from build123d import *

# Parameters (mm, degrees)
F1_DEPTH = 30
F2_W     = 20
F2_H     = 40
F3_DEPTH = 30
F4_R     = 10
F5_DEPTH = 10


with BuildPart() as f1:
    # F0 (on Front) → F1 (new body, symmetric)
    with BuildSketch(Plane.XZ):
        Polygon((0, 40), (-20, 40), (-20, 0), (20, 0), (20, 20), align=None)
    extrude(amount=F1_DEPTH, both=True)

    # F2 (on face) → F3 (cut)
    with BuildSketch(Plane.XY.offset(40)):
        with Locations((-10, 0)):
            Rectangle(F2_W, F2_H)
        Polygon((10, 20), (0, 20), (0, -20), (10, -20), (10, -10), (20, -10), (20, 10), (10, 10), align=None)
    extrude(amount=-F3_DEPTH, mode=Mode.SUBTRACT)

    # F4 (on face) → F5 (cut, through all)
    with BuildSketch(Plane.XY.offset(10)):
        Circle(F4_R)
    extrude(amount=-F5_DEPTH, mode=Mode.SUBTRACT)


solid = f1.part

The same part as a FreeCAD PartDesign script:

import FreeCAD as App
import Part
import Sketcher

doc = App.newDocument("Part")
params = doc.addObject("Spreadsheet::Sheet", "Params")
for row, (alias, value) in enumerate([
    ("sketch1_width", "20 mm"),
    ("pad1_length", "60 mm"),
    ("sketch2_width", "30 mm"),
    ("sketch2_width2", "10 mm"),
    ("sketch2_height", "40 mm"),
    ("pocket1_length", "30 mm"),
    ("sketch3_diameter", "20 mm"),
], start=1):
    params.set(f"A{row}", alias)
    params.set(f"B{row}", "=" + value)
    params.setAlias(f"B{row}", alias)

body = doc.addObject("PartDesign::Body", "Body")

# Sketch on XZ plane
sketch1 = doc.addObject("Sketcher::SketchObject", "Sketch")
body.addObject(sketch1)
sketch1.AttachmentSupport = (doc.XZ_Plane, [""])
sketch1.MapMode = "FlatFace"
sketch1.addGeometry(Part.LineSegment(App.Vector(0, 40, 0), App.Vector(-20, 40, 0)), False)
sketch1.addGeometry(Part.LineSegment(App.Vector(-20, 40, 0), App.Vector(-20, 0, 0)), False)
sketch1.addGeometry(Part.LineSegment(App.Vector(-20, 0, 0), App.Vector(20, 0, 0)), False)
sketch1.addGeometry(Part.LineSegment(App.Vector(20, 0, 0), App.Vector(20, 20, 0)), False)
sketch1.addGeometry(Part.LineSegment(App.Vector(20, 20, 0), App.Vector(0, 40, 0)), False)
sketch1.addConstraint(Sketcher.Constraint("Coincident", 0, 2, 1, 1))
sketch1.addConstraint(Sketcher.Constraint("Coincident", 1, 2, 2, 1))
sketch1.addConstraint(Sketcher.Constraint("Coincident", 2, 2, 3, 1))
sketch1.addConstraint(Sketcher.Constraint("Coincident", 3, 2, 4, 1))
sketch1.addConstraint(Sketcher.Constraint("Coincident", 4, 2, 0, 1))
sketch1.addConstraint(Sketcher.Constraint("Horizontal", 0))
sketch1.addConstraint(Sketcher.Constraint("Vertical", 1))
sketch1.addConstraint(Sketcher.Constraint("Horizontal", 2))
sketch1.addConstraint(Sketcher.Constraint("Vertical", 3))
sketch1.addConstraint(Sketcher.Constraint("Symmetric", 1, 2, 2, 2, -1, 1))
sketch1.addConstraint(Sketcher.Constraint("PointOnObject", 4, 2, -2))
sketch1.addConstraint(Sketcher.Constraint("Equal", 2, 1))
sketch1.addConstraint(Sketcher.Constraint("Equal", 0, 3))
sketch1.addConstraint(Sketcher.Constraint("DistanceX", 0, 2, 0, 1, 20.0))
sketch1.setExpression("Constraints[13]", "Params.sketch1_width")
pad1 = doc.addObject("PartDesign::Pad", "Pad")
body.addObject(pad1)
pad1.Profile = sketch1
pad1.setExpression("Length", "Params.pad1_length")
pad1.Midplane = True

# Sketch on XY plane
sketch2 = doc.addObject("Sketcher::SketchObject", "Sketch001")
body.addObject(sketch2)
sketch2.AttachmentSupport = (doc.XY_Plane, [""])
sketch2.MapMode = "FlatFace"
sketch2.AttachmentOffset = App.Placement(App.Vector(0, 0, 40), App.Rotation())
sketch2.addGeometry(Part.LineSegment(App.Vector(-20, 20, 0), App.Vector(-20, -20, 0)), False)
sketch2.addGeometry(Part.LineSegment(App.Vector(-20, -20, 0), App.Vector(10, -20, 0)), False)
sketch2.addGeometry(Part.LineSegment(App.Vector(10, -20, 0), App.Vector(10, -10, 0)), False)
sketch2.addGeometry(Part.LineSegment(App.Vector(10, -10, 0), App.Vector(20, -10, 0)), False)
sketch2.addGeometry(Part.LineSegment(App.Vector(20, -10, 0), App.Vector(20, 10, 0)), False)
sketch2.addGeometry(Part.LineSegment(App.Vector(20, 10, 0), App.Vector(10, 10, 0)), False)
sketch2.addGeometry(Part.LineSegment(App.Vector(10, 10, 0), App.Vector(10, 20, 0)), False)
sketch2.addGeometry(Part.LineSegment(App.Vector(10, 20, 0), App.Vector(-20, 20, 0)), False)
sketch2.addConstraint(Sketcher.Constraint("Coincident", 0, 2, 1, 1))
sketch2.addConstraint(Sketcher.Constraint("Coincident", 1, 2, 2, 1))
sketch2.addConstraint(Sketcher.Constraint("Coincident", 2, 2, 3, 1))
sketch2.addConstraint(Sketcher.Constraint("Coincident", 3, 2, 4, 1))
sketch2.addConstraint(Sketcher.Constraint("Coincident", 4, 2, 5, 1))
sketch2.addConstraint(Sketcher.Constraint("Coincident", 5, 2, 6, 1))
sketch2.addConstraint(Sketcher.Constraint("Coincident", 6, 2, 7, 1))
sketch2.addConstraint(Sketcher.Constraint("Coincident", 7, 2, 0, 1))
sketch2.addConstraint(Sketcher.Constraint("Vertical", 0))
sketch2.addConstraint(Sketcher.Constraint("Horizontal", 1))
sketch2.addConstraint(Sketcher.Constraint("Vertical", 2))
sketch2.addConstraint(Sketcher.Constraint("Horizontal", 3))
sketch2.addConstraint(Sketcher.Constraint("Vertical", 4))
sketch2.addConstraint(Sketcher.Constraint("Horizontal", 5))
sketch2.addConstraint(Sketcher.Constraint("Vertical", 6))
sketch2.addConstraint(Sketcher.Constraint("Horizontal", 7))
sketch2.addConstraint(Sketcher.Constraint("Symmetric", 2, 2, 5, 2, -1))
sketch2.addConstraint(Sketcher.Constraint("Equal", 5, 2))
sketch2.addConstraint(Sketcher.Constraint("Equal", 2, 6))
sketch2.addConstraint(Sketcher.Constraint("DistanceX", 1, 1, 1, 2, 30.0))
sketch2.addConstraint(Sketcher.Constraint("DistanceX", 3, 1, 3, 2, 10.0))
sketch2.addConstraint(Sketcher.Constraint("DistanceY", 0, 2, 0, 1, 40.0))
sketch2.addConstraint(Sketcher.Constraint("DistanceX", 0, 2, -1, 1, 20.0))
sketch2.setExpression("Constraints[19]", "Params.sketch2_width")
sketch2.setExpression("Constraints[20]", "Params.sketch2_width2")
sketch2.setExpression("Constraints[21]", "Params.sketch2_height")
pocket1 = doc.addObject("PartDesign::Pocket", "Pocket")
body.addObject(pocket1)
pocket1.Profile = sketch2
pocket1.setExpression("Length", "Params.pocket1_length")

# Sketch on XY plane
sketch3 = doc.addObject("Sketcher::SketchObject", "Sketch002")
body.addObject(sketch3)
sketch3.AttachmentSupport = (doc.XY_Plane, [""])
sketch3.MapMode = "FlatFace"
sketch3.AttachmentOffset = App.Placement(App.Vector(0, 0, 10), App.Rotation())
sketch3.addGeometry(Part.Circle(App.Vector(0, 0, 0), App.Vector(0, 0, 1), 10), False)
sketch3.addConstraint(Sketcher.Constraint("Coincident", 0, 3, -1, 1))
sketch3.addConstraint(Sketcher.Constraint("Diameter", 0, 20.0))
sketch3.setExpression("Constraints[1]", "Params.sketch3_diameter")
pocket2 = doc.addObject("PartDesign::Pocket", "Pocket001")
body.addObject(pocket2)
pocket2.Profile = sketch3
pocket2.Type = "ThroughAll"

doc.recompute()
